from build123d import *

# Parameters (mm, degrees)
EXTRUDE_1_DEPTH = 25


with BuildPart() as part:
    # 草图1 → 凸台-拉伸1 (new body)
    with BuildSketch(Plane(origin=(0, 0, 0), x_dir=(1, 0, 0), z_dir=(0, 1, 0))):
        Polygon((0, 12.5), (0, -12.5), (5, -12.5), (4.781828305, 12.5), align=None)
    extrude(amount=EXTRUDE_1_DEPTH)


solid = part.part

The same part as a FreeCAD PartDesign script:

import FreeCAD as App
import Part
import Sketcher
from FreeCAD import Vector
Q = App.Units.Quantity

doc = App.newDocument("Part")
body = doc.addObject("PartDesign::Body", "Body")

sketch1 = body.newObject("Sketcher::SketchObject", "Sketch")
sketch1.AttachmentSupport = (doc.getObject("XZ_Plane"), [""])
sketch1.MapMode = "FlatFace"
sketch1.addGeometry([
    Part.LineSegment(Vector(0, -12.5, 0), Vector(0, 12.5, 0)),
    Part.LineSegment(Vector(0, 12.5, 0), Vector(5, 12.5, 0)),
    Part.LineSegment(Vector(5, 12.5, 0), Vector(4.8, -12.5, 0)),
    Part.LineSegment(Vector(4.8, -12.5, 0), Vector(0, -12.5, 0)),
], False)
sketch1.addConstraint([
    Sketcher.Constraint("Coincident", 0, 2, 1, 1),
    Sketcher.Constraint("Coincident", 1, 2, 2, 1),
    Sketcher.Constraint("Coincident", 2, 2, 3, 1),
    Sketcher.Constraint("Coincident", 3, 2, 0, 1),
    Sketcher.Constraint("Vertical", 0),
    Sketcher.Constraint("Horizontal", 1),
    Sketcher.Constraint("Horizontal", 3),
    Sketcher.Constraint("Symmetric", 0, 2, 3, 2, -1, 1),
    Sketcher.Constraint("DistanceX", 1, 1, 1, 2, Q("5 mm")),
    Sketcher.Constraint("DistanceY", 0, 1, 0, 2, Q("25 mm")),
    Sketcher.Constraint("Angle", 2, Q("-90.5 deg")),
])
pad1 = body.newObject("PartDesign::Pad", "Pad")
pad1.Profile = sketch1
pad1.Length = 25
pad1.Reversed = True

doc.recompute()
